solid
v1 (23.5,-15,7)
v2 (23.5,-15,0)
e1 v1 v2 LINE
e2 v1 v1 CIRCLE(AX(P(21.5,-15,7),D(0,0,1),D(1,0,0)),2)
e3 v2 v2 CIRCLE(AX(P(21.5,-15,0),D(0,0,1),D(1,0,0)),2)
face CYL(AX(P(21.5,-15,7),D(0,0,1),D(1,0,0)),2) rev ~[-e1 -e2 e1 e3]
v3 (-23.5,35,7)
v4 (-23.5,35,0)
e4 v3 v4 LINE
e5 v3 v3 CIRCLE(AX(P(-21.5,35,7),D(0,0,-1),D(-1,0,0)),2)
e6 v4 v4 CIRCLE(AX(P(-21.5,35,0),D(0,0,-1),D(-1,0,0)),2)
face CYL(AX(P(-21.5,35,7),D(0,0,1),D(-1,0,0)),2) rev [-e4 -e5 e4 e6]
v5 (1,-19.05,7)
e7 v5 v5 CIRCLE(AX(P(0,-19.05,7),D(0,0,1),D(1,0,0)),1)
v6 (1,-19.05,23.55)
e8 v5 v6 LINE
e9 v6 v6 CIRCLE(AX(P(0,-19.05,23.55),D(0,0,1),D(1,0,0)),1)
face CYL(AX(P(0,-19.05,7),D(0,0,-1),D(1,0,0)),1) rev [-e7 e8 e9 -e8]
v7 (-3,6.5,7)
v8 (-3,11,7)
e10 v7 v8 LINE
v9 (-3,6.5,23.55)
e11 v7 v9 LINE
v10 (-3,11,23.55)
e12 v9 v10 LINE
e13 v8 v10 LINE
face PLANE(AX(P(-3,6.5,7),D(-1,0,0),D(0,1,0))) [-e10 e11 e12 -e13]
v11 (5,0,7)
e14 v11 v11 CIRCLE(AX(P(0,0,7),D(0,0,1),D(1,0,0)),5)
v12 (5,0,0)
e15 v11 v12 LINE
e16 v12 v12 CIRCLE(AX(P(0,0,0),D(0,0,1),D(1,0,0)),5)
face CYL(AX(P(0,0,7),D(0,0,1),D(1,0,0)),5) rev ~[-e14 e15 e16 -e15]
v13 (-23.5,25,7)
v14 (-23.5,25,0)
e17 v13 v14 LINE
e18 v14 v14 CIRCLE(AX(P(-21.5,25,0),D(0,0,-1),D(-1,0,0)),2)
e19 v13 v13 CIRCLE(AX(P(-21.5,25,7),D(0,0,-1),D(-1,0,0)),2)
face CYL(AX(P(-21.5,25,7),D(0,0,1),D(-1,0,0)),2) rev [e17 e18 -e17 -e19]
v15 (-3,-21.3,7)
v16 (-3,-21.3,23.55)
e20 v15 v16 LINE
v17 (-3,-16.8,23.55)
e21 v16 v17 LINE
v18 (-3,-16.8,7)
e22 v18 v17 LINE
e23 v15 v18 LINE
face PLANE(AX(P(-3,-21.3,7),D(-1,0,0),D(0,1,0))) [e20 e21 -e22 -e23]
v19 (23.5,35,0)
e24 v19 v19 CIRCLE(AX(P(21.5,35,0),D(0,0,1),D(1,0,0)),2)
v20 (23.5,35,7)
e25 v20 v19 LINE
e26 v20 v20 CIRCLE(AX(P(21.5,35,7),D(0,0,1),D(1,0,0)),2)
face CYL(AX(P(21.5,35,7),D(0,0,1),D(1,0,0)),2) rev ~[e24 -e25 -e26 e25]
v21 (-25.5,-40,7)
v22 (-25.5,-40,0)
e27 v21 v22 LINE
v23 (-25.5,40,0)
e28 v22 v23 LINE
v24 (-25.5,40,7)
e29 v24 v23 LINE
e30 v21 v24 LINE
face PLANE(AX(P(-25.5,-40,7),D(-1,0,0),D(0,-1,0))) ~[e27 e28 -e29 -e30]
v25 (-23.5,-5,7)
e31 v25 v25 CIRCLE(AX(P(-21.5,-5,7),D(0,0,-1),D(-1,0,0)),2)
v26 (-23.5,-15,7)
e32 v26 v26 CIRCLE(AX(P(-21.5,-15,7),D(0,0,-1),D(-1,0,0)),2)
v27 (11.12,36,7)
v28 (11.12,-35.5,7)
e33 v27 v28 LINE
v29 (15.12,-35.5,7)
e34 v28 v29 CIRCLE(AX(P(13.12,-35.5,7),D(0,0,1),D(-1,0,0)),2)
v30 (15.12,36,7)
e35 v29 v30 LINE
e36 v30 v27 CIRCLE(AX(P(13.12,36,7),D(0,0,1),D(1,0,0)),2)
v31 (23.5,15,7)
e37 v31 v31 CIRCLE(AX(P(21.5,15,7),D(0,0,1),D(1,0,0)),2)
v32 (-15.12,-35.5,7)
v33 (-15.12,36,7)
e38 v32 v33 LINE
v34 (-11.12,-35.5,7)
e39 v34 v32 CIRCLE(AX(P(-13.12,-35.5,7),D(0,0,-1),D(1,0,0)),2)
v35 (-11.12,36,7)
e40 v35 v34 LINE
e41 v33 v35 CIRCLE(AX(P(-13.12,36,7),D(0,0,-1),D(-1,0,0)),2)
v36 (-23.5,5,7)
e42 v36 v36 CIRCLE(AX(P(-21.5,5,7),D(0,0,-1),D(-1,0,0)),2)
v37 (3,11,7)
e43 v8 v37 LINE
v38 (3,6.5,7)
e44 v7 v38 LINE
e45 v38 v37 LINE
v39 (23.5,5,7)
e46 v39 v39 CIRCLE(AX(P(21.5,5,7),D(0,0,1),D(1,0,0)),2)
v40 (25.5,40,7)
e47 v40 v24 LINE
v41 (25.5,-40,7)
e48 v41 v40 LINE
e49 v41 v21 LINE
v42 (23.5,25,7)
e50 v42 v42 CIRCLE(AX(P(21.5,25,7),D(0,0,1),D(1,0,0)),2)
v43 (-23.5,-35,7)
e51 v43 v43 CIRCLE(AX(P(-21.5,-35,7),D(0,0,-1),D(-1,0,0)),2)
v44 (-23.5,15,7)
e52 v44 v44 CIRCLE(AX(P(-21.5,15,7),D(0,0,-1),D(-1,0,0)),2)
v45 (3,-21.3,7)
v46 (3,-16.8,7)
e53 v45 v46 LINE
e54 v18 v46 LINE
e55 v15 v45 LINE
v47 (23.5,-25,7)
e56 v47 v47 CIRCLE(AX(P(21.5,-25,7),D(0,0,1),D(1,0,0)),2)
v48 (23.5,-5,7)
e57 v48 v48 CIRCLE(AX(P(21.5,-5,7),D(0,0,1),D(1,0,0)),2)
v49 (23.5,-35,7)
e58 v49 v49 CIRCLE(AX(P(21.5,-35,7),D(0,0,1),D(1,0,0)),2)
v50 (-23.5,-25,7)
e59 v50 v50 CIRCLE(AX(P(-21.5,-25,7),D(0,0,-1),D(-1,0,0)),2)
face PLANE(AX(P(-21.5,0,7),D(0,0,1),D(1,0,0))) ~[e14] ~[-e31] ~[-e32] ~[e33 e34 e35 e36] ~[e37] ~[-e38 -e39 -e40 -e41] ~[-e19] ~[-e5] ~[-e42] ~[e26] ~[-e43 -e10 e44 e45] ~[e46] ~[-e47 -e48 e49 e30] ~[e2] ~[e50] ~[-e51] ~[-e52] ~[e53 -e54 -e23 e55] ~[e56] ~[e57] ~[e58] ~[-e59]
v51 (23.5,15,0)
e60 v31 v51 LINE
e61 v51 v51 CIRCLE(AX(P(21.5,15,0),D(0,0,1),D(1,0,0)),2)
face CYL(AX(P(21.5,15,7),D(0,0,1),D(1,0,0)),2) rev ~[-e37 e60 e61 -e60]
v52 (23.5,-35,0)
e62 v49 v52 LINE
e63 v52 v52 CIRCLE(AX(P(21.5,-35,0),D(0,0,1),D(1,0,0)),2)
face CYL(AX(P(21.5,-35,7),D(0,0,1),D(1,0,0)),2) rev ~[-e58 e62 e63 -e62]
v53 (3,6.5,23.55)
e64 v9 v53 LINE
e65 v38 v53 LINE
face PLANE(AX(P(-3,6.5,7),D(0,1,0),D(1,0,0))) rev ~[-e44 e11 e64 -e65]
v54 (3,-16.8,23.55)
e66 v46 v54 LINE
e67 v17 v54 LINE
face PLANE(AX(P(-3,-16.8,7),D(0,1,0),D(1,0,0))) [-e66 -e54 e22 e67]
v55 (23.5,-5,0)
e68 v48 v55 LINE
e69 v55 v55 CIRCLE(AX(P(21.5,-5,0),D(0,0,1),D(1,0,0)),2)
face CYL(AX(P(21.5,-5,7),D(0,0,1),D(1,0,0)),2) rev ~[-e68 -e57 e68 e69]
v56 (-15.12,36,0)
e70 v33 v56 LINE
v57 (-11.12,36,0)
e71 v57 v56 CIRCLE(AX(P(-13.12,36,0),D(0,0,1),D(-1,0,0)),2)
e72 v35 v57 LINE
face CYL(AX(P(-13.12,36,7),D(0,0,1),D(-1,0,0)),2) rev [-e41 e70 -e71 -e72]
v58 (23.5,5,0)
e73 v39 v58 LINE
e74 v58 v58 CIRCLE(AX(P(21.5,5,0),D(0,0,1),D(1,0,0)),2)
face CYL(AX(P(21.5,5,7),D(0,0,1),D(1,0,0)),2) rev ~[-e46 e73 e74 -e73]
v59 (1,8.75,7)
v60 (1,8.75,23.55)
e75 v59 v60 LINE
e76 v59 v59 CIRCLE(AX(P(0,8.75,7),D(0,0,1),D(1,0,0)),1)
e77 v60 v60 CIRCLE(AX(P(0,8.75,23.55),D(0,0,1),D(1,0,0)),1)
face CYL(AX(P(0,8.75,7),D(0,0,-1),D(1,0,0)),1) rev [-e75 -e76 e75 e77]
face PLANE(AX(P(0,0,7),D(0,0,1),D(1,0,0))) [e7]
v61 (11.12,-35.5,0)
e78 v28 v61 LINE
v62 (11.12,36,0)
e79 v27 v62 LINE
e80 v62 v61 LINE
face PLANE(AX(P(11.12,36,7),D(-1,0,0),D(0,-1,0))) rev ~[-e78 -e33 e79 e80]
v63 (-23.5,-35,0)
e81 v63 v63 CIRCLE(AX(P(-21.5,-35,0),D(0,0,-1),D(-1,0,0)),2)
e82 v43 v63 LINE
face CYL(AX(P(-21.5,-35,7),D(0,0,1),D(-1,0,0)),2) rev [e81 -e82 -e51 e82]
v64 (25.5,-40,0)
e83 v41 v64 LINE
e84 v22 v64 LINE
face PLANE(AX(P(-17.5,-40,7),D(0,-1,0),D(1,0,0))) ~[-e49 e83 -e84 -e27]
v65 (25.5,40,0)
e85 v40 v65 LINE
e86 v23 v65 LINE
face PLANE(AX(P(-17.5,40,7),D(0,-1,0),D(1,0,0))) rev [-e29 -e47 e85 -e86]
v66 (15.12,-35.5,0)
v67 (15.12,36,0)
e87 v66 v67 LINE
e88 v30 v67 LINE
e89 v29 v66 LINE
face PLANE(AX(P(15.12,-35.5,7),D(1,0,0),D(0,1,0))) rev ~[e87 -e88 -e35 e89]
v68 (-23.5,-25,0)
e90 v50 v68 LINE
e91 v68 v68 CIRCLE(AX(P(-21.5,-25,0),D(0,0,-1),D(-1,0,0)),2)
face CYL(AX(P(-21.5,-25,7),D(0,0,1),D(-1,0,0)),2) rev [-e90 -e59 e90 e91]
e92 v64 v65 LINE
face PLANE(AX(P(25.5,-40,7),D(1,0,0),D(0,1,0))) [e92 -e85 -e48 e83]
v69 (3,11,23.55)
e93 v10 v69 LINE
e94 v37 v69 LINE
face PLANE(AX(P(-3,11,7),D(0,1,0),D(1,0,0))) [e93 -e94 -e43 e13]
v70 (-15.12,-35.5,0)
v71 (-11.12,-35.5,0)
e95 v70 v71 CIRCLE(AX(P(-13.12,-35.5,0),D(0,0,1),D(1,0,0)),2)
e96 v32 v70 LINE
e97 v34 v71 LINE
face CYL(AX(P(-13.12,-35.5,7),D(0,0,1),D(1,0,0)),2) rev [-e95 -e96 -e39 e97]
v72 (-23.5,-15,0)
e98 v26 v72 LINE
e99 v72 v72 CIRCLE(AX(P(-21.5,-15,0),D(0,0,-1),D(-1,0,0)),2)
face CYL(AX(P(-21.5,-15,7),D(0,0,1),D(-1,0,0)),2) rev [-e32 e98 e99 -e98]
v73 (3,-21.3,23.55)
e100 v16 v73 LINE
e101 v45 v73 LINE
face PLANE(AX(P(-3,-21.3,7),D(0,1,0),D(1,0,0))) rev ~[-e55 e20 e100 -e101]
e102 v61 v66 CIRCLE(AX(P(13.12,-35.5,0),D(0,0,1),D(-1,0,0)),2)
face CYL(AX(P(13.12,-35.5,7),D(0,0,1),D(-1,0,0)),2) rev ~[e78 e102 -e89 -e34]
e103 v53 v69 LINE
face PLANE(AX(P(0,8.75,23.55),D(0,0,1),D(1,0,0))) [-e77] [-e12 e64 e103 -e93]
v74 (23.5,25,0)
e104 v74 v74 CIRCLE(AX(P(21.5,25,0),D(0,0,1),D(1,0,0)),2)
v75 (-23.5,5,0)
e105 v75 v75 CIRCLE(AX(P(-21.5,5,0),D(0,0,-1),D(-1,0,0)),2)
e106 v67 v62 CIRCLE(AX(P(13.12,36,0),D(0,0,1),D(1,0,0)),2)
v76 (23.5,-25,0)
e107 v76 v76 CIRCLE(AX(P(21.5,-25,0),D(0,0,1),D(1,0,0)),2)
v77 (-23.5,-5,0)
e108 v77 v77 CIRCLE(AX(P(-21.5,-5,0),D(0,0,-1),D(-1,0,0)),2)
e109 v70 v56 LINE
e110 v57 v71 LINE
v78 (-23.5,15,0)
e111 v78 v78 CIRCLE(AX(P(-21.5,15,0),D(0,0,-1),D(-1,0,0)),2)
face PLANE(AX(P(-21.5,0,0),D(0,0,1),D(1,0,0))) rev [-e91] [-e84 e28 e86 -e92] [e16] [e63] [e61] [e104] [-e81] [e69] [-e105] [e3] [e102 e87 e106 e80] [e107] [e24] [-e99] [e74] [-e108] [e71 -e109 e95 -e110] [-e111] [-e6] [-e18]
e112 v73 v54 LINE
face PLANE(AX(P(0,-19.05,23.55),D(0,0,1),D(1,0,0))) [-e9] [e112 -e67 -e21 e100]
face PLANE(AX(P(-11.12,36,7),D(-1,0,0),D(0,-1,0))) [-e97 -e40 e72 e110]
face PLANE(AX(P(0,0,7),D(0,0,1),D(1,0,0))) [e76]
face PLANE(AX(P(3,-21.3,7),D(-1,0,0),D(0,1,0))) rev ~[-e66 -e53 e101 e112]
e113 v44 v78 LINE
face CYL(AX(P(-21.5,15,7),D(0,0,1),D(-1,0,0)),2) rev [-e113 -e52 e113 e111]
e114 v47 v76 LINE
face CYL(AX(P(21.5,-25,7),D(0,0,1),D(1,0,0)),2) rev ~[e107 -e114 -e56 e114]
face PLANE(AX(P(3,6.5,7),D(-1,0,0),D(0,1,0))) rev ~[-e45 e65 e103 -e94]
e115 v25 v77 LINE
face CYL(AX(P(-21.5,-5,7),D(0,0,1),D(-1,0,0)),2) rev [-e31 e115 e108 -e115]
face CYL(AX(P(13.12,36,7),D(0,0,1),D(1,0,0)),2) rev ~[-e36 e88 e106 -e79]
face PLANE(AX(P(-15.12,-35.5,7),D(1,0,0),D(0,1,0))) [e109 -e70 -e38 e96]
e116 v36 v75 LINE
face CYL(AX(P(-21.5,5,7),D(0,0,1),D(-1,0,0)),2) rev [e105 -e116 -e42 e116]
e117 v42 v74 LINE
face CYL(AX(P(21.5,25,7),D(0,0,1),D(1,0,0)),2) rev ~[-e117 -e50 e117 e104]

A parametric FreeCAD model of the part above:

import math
import FreeCAD as App
import Part
import Sketcher

V = App.Vector
Q = App.Units.Quantity


def add_polygon(sketch, points):
    """Adds a closed chain of lines whose ends are joined by coincident constraints."""
    first, n = sketch.GeometryCount, len(points)
    for a, b in zip(points, points[1:] + points[:1]):
        sketch.addGeometry(Part.LineSegment(App.Vector(*a, 0), App.Vector(*b, 0)), False)
    for i in range(n):
        sketch.addConstraint(Sketcher.Constraint("Coincident", first + i, 2, first + (i + 1) % n, 1))

doc = App.newDocument("Part")
body = doc.addObject("PartDesign::Body", "Body")

# Sketch on XY plane
sketch1 = body.newObject("Sketcher::SketchObject", "Sketch")
sketch1.AttachmentSupport = (doc.getObject("XY_Plane"), [""])
sketch1.MapMode = "FlatFace"
add_polygon(sketch1, [(-18, 40), (-18, -40), (18, -40), (18, 40)])  # lines 0-3
sketch1.addConstraint(Sketcher.Constraint("Vertical", 0))
sketch1.addConstraint(Sketcher.Constraint("Horizontal", 1))
sketch1.addConstraint(Sketcher.Constraint("Vertical", 2))
sketch1.addConstraint(Sketcher.Constraint("Horizontal", 3))
sketch1.addConstraint(Sketcher.Constraint("Symmetric", 0, 2, 2, 2, -1, 1))
sketch1.addConstraint(Sketcher.Constraint("DistanceX", 1, 1, 1, 2, Q("35 mm")))
sketch1.addConstraint(Sketcher.Constraint("DistanceY", 0, 2, 0, 1, Q("80 mm")))
pad1 = body.newObject("PartDesign::Pad", "Pad")
pad1.Profile = sketch1
pad1.Length = 7

# Sketch on XY plane
sketch2 = body.newObject("Sketcher::SketchObject", "Sketch001")
sketch2.AttachmentSupport = (doc.getObject("XY_Plane"), [""])
sketch2.MapMode = "FlatFace"
sketch2.AttachmentOffset = App.Placement(V(0, 0, 7), App.Rotation())
add_polygon(sketch2, [(-3, 11), (-3, 6.5), (3, 6.5), (3, 11)])  # lines 0-3
sketch2.addGeometry(Part.Circle(V(0, 8.8, 0), V(0, 0, 1), 1), False)  # 4
add_polygon(sketch2, [(-3, -16.8), (-3, -21.3), (3, -21.3), (3, -16.8)])  # lines 5-8
sketch2.addGeometry(Part.Circle(V(0, -19.1, 0), V(0, 0, 1), 1), False)  # 9
sketch2.addConstraint(Sketcher.Constraint("Vertical", 0))
sketch2.addConstraint(Sketcher.Constraint("Horizontal", 1))
sketch2.addConstraint(Sketcher.Constraint("Vertical", 2))
sketch2.addConstraint(Sketcher.Constraint("Horizontal", 3))
sketch2.addConstraint(Sketcher.Constraint("Vertical", 5))
sketch2.addConstraint(Sketcher.Constraint("Horizontal", 6))
sketch2.addConstraint(Sketcher.Constraint("Vertical", 7))
sketch2.addConstraint(Sketcher.Constraint("Horizontal", 8))
sketch2.addConstraint(Sketcher.Constraint("Equal", 4, 9))
sketch2.addConstraint(Sketcher.Constraint("PointOnObject", 4, 3, -2))
sketch2.addConstraint(Sketcher.Constraint("PointOnObject", 9, 3, -2))
sketch2.addConstraint(Sketcher.Constraint("Vertical", 3, 2, 5, 2))
sketch2.addConstraint(Sketcher.Constraint("Vertical", 2, 2, 6, 2))
sketch2.addConstraint(Sketcher.Constraint("Equal", 2, 5))
sketch2.addConstraint(Sketcher.Constraint("Diameter", 4, Q("2 mm")))
sketch2.addConstraint(Sketcher.Constraint("DistanceX", 1, 1, 1, 2, Q("6 mm")))
sketch2.addConstraint(Sketcher.Constraint("DistanceY", 0, 2, 0, 1, Q("4.5 mm")))
sketch2.addConstraint(Sketcher.Constraint("DistanceX", 0, 2, -1, 1, Q("3 mm")))
sketch2.addConstraint(Sketcher.Constraint("DistanceY", -1, 1, 2, 2, Q("11 mm")))
sketch2.addConstraint(Sketcher.Constraint("DistanceY", 5, 2, -1, 1, Q("21.3 mm")))
sketch2.addConstraint(Sketcher.Constraint("DistanceY", 9, 3, 4, 3, Q("27.8 mm")))
sketch2.addConstraint(Sketcher.Constraint("DistanceY", -1, 1, 4, 3, Q("8.75 mm")))
pad2 = body.newObject("PartDesign::Pad", "Pad001")
pad2.Profile = sketch2
pad2.Length = 16.55

# Sketch on XY plane
sketch3 = body.newObject("Sketcher::SketchObject", "Sketch002")
sketch3.AttachmentSupport = (doc.getObject("XY_Plane"), [""])
sketch3.MapMode = "FlatFace"
sketch3.AttachmentOffset = App.Placement(V(0, 0, 7), App.Rotation())
sketch3.addGeometry(Part.Circle(V(0, 0, 0), V(0, 0, 1), 5), False)
sketch3.addConstraint(Sketcher.Constraint("Coincident", 0, 3, -1, 1))
sketch3.addConstraint(Sketcher.Constraint("Diameter", 0, Q("10 mm")))
pocket1 = body.newObject("PartDesign::Pocket", "Pocket")
pocket1.Profile = sketch3
pocket1.Length = 7

# Sketch on XY plane
sketch4 = body.newObject("Sketcher::SketchObject", "Sketch003")
sketch4.AttachmentSupport = (doc.getObject("XY_Plane"), [""])
sketch4.MapMode = "FlatFace"
sketch4.AttachmentOffset = App.Placement(V(0, 0, 7), App.Rotation())
sketch4.addGeometry(Part.LineSegment(V(-11.1, -35.5, 0), V(-11.1, 36, 0)), False)
sketch4.addGeometry(Part.ArcOfCircle(Part.Circle(V(-13.1, 36, 0), V(0, 0, 1), 2), math.radians(0), math.radians(180)), False)
sketch4.addGeometry(Part.LineSegment(V(-15.1, 36, 0), V(-15.1, -35.5, 0)), False)
sketch4.addGeometry(Part.ArcOfCircle(Part.Circle(V(-13.1, -35.5, 0), V(0, 0, 1), 2), math.radians(180), math.radians(360)), False)
sketch4.addGeometry(Part.LineSegment(V(11.1, 36, 0), V(11.1, -35.5, 0)), False)
sketch4.addGeometry(Part.ArcOfCircle(Part.Circle(V(13.1, -35.5, 0), V(0, 0, 1), 2), math.radians(180), math.radians(360)), False)
sketch4.addGeometry(Part.LineSegment(V(15.1, -35.5, 0), V(15.1, 36, 0)), False)
sketch4.addGeometry(Part.ArcOfCircle(Part.Circle(V(13.1, 36, 0), V(0, 0, 1), 2), math.radians(0), math.radians(180)), False)
sketch4.addConstraint(Sketcher.Constraint("Tangent", 0, 2, 1, 1))
sketch4.addConstraint(Sketcher.Constraint("Tangent", 1, 2, 2, 1))
sketch4.addConstraint(Sketcher.Constraint("Tangent", 2, 2, 3, 1))
sketch4.addConstraint(Sketcher.Constraint("Tangent", 3, 2, 0, 1))
sketch4.addConstraint(Sketcher.Constraint("Tangent", 4, 2, 5, 1))
sketch4.addConstraint(Sketcher.Constraint("Tangent", 5, 2, 6, 1))
sketch4.addConstraint(Sketcher.Constraint("Tangent", 6, 2, 7, 1))
sketch4.addConstraint(Sketcher.Constraint("Tangent", 7, 2, 4, 1))
sketch4.addConstraint(Sketcher.Constraint("Vertical", 0))
sketch4.addConstraint(Sketcher.Constraint("Vertical", 2))
sketch4.addConstraint(Sketcher.Constraint("Vertical", 4))
sketch4.addConstraint(Sketcher.Constraint("Vertical", 6))
sketch4.addConstraint(Sketcher.Constraint("Equal", 3, 5))
sketch4.addConstraint(Sketcher.Constraint("Symmetric", 3, 3, 5, 3, -2))
sketch4.addConstraint(Sketcher.Constraint("Horizontal", 1, 3, 7, 3))
sketch4.addConstraint(Sketcher.Constraint("Radius", 1, Q("2 mm")))
sketch4.addConstraint(Sketcher.Constraint("DistanceY", 0, 1, 0, 2, Q("71.5 mm")))
sketch4.addConstraint(Sketcher.Constraint("DistanceY", -1, 1, 1, 3, Q("36 mm")))
sketch4.addConstraint(Sketcher.Constraint("DistanceX", 1, 3, -1, 1, Q("13.12 mm")))
pocket2 = body.newObject("PartDesign::Pocket", "Pocket001")
pocket2.Profile = sketch4
pocket2.Length = 15

# Sketch on XY plane
sketch5 = body.newObject("Sketcher::SketchObject", "Sketch004")
sketch5.AttachmentSupport = (doc.getObject("XY_Plane"), [""])
sketch5.MapMode = "FlatFace"
sketch5.AttachmentOffset = App.Placement(V(0, 0, 7), App.Rotation())
add_polygon(sketch5, [(17.5, 40), (17.5, -40), (25.5, -40), (25.5, 40)])  # lines 0-3
sketch5.addGeometry(Part.Circle(V(21.5, -35, 0), V(0, 0, 1), 2), False)  # 4
sketch5.addGeometry(Part.Circle(V(21.5, -25, 0), V(0, 0, 1), 2), False)  # 5
sketch5.addGeometry(Part.Circle(V(21.5, -15, 0), V(0, 0, 1), 2), False)  # 6
sketch5.addGeometry(Part.Circle(V(21.5, -5, 0), V(0, 0, 1), 2), False)  # 7
sketch5.addGeometry(Part.Circle(V(21.5, 5, 0), V(0, 0, 1), 2), False)  # 8
sketch5.addGeometry(Part.Circle(V(21.5, 15, 0), V(0, 0, 1), 2), False)  # 9
sketch5.addGeometry(Part.Circle(V(21.5, 25, 0), V(0, 0, 1), 2), False)  # 10
sketch5.addGeometry(Part.Circle(V(21.5, 35, 0), V(0, 0, 1), 2), False)  # 11
sketch5.addConstraint(Sketcher.Constraint("Vertical", 0))
sketch5.addConstraint(Sketcher.Constraint("Horizontal", 1))
sketch5.addConstraint(Sketcher.Constraint("Vertical", 2))
sketch5.addConstraint(Sketcher.Constraint("Horizontal", 3))
sketch5.addConstraint(Sketcher.Constraint("Equal", 4, 5))
sketch5.addConstraint(Sketcher.Constraint("Equal", 5, 6))
sketch5.addConstraint(Sketcher.Constraint("Equal", 6, 7))
sketch5.addConstraint(Sketcher.Constraint("Equal", 7, 8))
sketch5.addConstraint(Sketcher.Constraint("Equal", 8, 9))
sketch5.addConstraint(Sketcher.Constraint("Equal", 9, 10))
sketch5.addConstraint(Sketcher.Constraint("Equal", 10, 11))
sketch5.addConstraint(Sketcher.Constraint("Symmetric", 7, 3, 8, 3, -1))
sketch5.addConstraint(Sketcher.Constraint("Symmetric", 6, 3, 9, 3, -1))
sketch5.addConstraint(Sketcher.Constraint("Symmetric", 5, 3, 10, 3, -1))
sketch5.addConstraint(Sketcher.Constraint("Symmetric", 4, 3, 11, 3, -1))
sketch5.addConstraint(Sketcher.Constraint("Vertical", 4, 3, 5, 3))
sketch5.addConstraint(Sketcher.Constraint("Vertical", 5, 3, 6, 3))
sketch5.addConstraint(Sketcher.Constraint("Vertical", 6, 3, 7, 3))
sketch5.addConstraint(Sketcher.Constraint("Diameter", 4, Q("4 mm")))
sketch5.addConstraint(Sketcher.Constraint("DistanceX", 1, 1, 1, 2, Q("8 mm")))
sketch5.addConstraint(Sketcher.Constraint("DistanceY", 0, 2, 0, 1, Q("80 mm")))
sketch5.addConstraint(Sketcher.Constraint("DistanceY", 4, 3, -1, 1, Q("35 mm")))
sketch5.addConstraint(Sketcher.Constraint("DistanceY", 5, 3, -1, 1, Q("25 mm")))
sketch5.addConstraint(Sketcher.Constraint("DistanceY", 6, 3, -1, 1, Q("15 mm")))
sketch5.addConstraint(Sketcher.Constraint("DistanceY", 7, 3, -1, 1, Q("5 mm")))
sketch5.addConstraint(Sketcher.Constraint("DistanceY", 0, 2, -1, 1, Q("40 mm")))
sketch5.addConstraint(Sketcher.Constraint("DistanceX", 0, 2, 4, 3, Q("4 mm")))
sketch5.addConstraint(Sketcher.Constraint("DistanceX", -1, 1, 4, 3, Q("21.5 mm")))
pad3 = body.newObject("PartDesign::Pad", "Pad002")
pad3.Profile = sketch5
pad3.Length = 7
pad3.Reversed = True
doc.recompute()

mirrored = body.newObject("PartDesign::Mirrored", "Mirrored")
mirrored.Originals = [pad3]
mirrored.MirrorPlane = (doc.getObject("YZ_Plane"), [""])
body.Tip = mirrored

doc.recompute()
